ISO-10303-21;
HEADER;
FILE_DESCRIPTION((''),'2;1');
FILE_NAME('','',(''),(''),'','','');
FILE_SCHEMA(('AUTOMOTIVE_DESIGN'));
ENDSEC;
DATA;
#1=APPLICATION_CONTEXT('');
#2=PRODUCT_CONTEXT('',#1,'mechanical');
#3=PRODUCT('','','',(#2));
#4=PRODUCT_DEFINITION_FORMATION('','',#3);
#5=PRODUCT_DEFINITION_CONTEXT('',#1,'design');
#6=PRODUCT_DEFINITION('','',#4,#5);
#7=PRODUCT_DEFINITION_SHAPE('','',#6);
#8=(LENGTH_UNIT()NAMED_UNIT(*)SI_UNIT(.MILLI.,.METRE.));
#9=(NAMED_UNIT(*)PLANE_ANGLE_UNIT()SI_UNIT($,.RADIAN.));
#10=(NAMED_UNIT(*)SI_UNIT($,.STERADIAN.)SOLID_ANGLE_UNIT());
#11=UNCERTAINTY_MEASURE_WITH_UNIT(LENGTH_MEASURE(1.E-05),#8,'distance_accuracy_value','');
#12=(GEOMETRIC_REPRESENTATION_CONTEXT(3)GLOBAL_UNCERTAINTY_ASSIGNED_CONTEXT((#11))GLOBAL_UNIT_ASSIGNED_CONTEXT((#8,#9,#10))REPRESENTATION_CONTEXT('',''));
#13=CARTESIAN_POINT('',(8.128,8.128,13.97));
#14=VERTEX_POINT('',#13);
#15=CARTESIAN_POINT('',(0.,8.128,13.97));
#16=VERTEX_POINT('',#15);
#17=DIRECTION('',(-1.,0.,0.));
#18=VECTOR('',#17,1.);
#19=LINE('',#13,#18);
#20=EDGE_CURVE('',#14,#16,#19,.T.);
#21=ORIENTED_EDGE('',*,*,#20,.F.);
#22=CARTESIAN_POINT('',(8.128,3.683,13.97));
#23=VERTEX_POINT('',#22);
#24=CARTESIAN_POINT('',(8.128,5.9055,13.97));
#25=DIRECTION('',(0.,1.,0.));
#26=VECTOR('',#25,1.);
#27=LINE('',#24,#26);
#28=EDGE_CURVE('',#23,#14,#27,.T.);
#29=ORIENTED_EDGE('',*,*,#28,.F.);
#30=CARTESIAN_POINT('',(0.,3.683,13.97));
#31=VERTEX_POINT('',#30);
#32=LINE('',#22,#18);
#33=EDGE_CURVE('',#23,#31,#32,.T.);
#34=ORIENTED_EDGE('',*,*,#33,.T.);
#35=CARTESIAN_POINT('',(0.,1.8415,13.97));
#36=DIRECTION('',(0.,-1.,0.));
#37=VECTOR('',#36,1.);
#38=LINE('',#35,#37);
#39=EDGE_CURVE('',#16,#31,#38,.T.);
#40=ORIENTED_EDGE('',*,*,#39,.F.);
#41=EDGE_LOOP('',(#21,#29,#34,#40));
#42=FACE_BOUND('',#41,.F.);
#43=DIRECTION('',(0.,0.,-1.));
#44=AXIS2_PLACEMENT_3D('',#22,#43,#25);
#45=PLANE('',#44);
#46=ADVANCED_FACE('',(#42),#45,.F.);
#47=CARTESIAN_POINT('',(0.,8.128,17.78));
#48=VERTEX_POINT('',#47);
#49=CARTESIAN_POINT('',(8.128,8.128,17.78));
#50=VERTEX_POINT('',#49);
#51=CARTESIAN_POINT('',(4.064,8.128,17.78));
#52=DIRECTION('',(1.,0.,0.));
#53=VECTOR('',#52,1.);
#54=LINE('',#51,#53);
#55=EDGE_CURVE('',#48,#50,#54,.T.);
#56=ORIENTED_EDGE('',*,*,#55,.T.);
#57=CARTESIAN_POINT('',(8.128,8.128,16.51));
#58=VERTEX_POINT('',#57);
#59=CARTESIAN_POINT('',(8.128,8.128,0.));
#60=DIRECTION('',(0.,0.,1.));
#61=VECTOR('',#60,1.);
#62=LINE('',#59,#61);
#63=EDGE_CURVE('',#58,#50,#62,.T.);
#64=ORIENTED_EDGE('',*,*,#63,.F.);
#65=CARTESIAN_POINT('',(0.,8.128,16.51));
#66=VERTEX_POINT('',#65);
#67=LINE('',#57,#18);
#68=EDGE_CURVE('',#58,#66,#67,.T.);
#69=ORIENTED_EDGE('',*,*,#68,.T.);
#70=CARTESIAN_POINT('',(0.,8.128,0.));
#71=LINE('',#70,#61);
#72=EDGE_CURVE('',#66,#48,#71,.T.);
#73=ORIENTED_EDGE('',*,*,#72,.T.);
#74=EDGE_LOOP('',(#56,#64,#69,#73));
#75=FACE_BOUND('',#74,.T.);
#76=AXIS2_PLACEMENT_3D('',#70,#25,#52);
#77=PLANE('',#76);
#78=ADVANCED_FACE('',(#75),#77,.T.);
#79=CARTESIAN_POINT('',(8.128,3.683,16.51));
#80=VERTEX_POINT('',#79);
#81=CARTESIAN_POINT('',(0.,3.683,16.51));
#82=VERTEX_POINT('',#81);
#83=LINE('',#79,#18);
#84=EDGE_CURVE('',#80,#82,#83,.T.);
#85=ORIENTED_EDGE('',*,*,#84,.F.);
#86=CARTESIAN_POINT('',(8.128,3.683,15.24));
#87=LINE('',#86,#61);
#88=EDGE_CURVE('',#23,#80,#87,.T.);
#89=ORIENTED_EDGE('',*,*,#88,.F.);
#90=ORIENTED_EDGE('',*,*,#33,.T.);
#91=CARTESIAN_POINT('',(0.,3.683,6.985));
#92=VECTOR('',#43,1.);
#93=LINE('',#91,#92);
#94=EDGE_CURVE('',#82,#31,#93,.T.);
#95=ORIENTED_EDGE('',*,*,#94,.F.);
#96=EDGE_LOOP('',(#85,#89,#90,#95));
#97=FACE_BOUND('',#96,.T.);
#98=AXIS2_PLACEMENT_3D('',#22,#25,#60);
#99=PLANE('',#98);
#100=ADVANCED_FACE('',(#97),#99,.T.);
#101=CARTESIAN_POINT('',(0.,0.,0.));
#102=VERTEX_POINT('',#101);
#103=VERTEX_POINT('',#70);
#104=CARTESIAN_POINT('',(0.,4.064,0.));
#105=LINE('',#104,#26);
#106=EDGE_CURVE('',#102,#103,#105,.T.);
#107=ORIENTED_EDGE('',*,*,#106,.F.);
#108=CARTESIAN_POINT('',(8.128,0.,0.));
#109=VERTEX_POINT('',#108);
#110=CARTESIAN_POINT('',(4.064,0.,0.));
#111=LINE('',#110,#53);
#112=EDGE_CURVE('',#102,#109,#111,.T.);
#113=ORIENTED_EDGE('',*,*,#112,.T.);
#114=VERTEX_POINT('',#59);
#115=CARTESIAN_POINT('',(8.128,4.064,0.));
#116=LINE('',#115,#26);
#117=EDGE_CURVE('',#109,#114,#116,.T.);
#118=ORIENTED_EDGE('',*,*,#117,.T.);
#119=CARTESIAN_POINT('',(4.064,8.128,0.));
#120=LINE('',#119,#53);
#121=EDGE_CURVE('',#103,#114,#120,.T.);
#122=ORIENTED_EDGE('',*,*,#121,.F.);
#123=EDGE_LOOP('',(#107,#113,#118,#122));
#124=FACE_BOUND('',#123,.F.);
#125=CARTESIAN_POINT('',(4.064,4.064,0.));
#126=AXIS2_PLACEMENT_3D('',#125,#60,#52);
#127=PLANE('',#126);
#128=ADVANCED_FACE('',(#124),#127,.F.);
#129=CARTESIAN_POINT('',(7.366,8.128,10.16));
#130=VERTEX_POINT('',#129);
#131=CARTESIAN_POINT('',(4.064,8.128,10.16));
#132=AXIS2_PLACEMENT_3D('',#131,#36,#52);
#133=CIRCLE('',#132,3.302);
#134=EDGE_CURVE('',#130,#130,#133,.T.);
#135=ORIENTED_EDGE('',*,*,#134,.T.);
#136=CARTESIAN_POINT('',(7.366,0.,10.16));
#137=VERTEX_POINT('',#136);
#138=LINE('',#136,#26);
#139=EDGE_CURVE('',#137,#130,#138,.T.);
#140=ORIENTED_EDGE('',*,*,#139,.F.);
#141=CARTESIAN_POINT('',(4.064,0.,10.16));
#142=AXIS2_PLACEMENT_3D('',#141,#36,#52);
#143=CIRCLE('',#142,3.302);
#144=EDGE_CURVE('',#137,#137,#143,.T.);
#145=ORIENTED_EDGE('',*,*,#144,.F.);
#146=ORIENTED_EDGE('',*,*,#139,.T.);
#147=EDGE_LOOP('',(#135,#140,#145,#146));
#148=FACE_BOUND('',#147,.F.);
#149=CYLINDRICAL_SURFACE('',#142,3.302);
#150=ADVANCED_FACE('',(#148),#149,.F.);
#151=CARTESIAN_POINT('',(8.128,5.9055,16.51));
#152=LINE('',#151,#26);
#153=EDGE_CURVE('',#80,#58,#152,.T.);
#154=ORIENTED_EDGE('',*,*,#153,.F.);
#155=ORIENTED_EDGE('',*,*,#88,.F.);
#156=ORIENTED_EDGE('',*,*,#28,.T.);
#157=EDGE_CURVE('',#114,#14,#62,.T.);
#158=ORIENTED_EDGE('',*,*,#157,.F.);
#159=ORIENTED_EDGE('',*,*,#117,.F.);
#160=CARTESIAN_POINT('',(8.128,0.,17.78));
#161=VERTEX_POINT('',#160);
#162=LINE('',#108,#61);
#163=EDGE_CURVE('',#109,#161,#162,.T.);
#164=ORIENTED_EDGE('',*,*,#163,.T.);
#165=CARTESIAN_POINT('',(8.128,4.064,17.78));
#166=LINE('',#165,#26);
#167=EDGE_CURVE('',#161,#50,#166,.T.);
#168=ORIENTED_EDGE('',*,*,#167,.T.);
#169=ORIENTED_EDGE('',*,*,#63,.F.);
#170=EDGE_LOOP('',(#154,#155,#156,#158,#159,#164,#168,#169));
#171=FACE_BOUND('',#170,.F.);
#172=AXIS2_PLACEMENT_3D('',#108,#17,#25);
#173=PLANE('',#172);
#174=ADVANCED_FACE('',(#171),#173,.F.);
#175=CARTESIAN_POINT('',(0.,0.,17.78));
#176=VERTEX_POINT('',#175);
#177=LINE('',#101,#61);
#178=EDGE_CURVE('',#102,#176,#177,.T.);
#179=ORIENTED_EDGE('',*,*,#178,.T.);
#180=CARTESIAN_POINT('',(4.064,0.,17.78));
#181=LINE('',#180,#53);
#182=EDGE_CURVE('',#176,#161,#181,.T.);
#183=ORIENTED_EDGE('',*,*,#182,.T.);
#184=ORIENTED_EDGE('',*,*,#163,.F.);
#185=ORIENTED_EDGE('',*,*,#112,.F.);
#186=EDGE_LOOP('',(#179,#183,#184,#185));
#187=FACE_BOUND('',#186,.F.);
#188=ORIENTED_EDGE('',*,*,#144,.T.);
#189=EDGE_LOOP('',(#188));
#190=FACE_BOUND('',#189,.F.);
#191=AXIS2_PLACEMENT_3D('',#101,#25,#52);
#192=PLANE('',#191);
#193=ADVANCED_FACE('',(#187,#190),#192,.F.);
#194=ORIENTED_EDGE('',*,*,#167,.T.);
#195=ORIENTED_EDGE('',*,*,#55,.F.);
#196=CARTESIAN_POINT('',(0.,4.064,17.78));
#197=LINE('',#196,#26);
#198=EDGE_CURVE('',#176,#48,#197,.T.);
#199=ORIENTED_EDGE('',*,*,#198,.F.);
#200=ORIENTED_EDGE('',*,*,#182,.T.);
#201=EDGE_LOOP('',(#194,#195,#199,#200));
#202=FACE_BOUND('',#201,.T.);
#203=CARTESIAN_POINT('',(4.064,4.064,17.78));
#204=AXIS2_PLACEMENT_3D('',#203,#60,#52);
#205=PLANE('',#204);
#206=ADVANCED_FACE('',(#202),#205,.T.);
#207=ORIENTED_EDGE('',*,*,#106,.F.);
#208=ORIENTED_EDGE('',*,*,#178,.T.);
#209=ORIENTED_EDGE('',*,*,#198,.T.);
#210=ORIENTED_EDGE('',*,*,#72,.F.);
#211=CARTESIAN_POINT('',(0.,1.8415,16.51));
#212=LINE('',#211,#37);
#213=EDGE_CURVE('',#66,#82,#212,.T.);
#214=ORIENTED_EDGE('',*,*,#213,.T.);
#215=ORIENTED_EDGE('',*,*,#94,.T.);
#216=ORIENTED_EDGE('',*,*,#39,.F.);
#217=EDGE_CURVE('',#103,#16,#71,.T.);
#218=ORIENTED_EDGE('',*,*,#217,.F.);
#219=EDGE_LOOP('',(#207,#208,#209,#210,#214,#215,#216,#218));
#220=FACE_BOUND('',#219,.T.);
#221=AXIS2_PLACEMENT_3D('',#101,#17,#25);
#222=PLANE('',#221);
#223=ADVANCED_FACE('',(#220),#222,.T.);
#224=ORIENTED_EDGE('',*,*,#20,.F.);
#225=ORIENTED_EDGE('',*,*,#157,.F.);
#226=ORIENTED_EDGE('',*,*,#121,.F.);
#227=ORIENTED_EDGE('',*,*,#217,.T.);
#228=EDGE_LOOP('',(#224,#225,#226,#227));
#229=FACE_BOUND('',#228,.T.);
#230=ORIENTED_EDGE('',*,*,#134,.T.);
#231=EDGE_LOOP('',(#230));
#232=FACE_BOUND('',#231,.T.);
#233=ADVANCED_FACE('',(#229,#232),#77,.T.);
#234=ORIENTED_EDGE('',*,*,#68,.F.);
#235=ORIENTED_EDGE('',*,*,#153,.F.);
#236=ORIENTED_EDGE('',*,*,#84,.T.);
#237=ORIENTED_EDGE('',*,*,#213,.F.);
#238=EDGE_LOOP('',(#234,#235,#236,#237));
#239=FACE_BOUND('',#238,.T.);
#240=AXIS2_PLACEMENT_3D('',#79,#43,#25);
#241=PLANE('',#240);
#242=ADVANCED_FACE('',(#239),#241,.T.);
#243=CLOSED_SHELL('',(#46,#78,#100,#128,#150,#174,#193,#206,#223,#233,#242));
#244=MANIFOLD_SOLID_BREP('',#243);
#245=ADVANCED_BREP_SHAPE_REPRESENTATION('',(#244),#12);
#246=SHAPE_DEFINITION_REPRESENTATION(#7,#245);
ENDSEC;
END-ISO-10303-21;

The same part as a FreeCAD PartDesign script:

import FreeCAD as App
import Part
import Sketcher

V = App.Vector
Q = App.Units.Quantity


def add_polygon(sketch, points):
    """Adds a closed chain of lines whose ends are joined by coincident constraints."""
    first, n = sketch.GeometryCount, len(points)
    for a, b in zip(points, points[1:] + points[:1]):
        sketch.addGeometry(Part.LineSegment(App.Vector(*a, 0), App.Vector(*b, 0)), False)
    for i in range(n):
        sketch.addConstraint(Sketcher.Constraint("Coincident", first + i, 2, first + (i + 1) % n, 1))

doc = App.newDocument("Part")
body = doc.addObject("PartDesign::Body", "Body")

# Sketch on XY plane
sketch1 = body.newObject("Sketcher::SketchObject", "Sketch")
sketch1.AttachmentSupport = (doc.getObject("XY_Plane"), [""])
sketch1.MapMode = "FlatFace"
add_polygon(sketch1, [(0, 8.128), (0, 0), (8.128, 0), (8.128, 8.128)])  # lines 0-3
sketch1.addConstraint([
    Sketcher.Constraint("Vertical", 0),
    Sketcher.Constraint("Horizontal", 1),
    Sketcher.Constraint("Vertical", 2),
    Sketcher.Constraint("Horizontal", 3),
    Sketcher.Constraint("Coincident", 0, 2, -1, 1),
    Sketcher.Constraint("Equal", 3, 0),
    Sketcher.Constraint("DistanceX", 1, 1, 1, 2, Q("0.32 in")),
])
pad1 = body.newObject("PartDesign::Pad", "Pad")
pad1.Profile = sketch1
pad1.Length = Q("0.7 in")

# Sketch on YZ plane
sketch2 = body.newObject("Sketcher::SketchObject", "Sketch001")
sketch2.AttachmentSupport = (doc.getObject("YZ_Plane"), [""])
sketch2.MapMode = "FlatFace"
sketch2.AttachmentOffset = App.Placement(V(0, 0, 0.32 * 25.4), App.Rotation())
add_polygon(sketch2, [(3.683, 16.51), (3.683, 13.97), (8.128, 13.97), (8.128, 16.51)])  # lines 0-3
sketch2.addConstraint([
    Sketcher.Constraint("Vertical", 0),
    Sketcher.Constraint("Horizontal", 1),
    Sketcher.Constraint("Vertical", 2),
    Sketcher.Constraint("Horizontal", 3),
    Sketcher.Constraint("DistanceY", 0, 2, 0, 1, Q("0.1 in")),
    Sketcher.Constraint("DistanceX", 1, 1, 1, 2, Q("0.175 in")),
    Sketcher.Constraint("DistanceY", -1, 1, 0, 2, Q("0.55 in")),
    Sketcher.Constraint("DistanceX", -1, 1, 1, 2, Q("0.32 in")),
])
pocket1 = body.newObject("PartDesign::Pocket", "Pocket")
pocket1.Profile = sketch2
pocket1.Length = Q("1 in")

# Sketch on XZ plane
sketch3 = body.newObject("Sketcher::SketchObject", "Sketch002")
sketch3.AttachmentSupport = (doc.getObject("XZ_Plane"), [""])
sketch3.MapMode = "FlatFace"
sketch3.addGeometry(Part.Circle(V(4.064, 10.16, 0), V(0, 0, 1), 3.302), False)
sketch3.addConstraint([
    Sketcher.Constraint("Diameter", 0, Q("0.26 in")),
    Sketcher.Constraint("DistanceY", -1, 1, 0, 3, Q("0.4 in")),
    Sketcher.Constraint("DistanceX", -1, 1, 0, 3, Q("0.16 in")),
])
pocket2 = body.newObject("PartDesign::Pocket", "Pocket001")
pocket2.Profile = sketch3
pocket2.Length = Q("1 in")

doc.recompute()
